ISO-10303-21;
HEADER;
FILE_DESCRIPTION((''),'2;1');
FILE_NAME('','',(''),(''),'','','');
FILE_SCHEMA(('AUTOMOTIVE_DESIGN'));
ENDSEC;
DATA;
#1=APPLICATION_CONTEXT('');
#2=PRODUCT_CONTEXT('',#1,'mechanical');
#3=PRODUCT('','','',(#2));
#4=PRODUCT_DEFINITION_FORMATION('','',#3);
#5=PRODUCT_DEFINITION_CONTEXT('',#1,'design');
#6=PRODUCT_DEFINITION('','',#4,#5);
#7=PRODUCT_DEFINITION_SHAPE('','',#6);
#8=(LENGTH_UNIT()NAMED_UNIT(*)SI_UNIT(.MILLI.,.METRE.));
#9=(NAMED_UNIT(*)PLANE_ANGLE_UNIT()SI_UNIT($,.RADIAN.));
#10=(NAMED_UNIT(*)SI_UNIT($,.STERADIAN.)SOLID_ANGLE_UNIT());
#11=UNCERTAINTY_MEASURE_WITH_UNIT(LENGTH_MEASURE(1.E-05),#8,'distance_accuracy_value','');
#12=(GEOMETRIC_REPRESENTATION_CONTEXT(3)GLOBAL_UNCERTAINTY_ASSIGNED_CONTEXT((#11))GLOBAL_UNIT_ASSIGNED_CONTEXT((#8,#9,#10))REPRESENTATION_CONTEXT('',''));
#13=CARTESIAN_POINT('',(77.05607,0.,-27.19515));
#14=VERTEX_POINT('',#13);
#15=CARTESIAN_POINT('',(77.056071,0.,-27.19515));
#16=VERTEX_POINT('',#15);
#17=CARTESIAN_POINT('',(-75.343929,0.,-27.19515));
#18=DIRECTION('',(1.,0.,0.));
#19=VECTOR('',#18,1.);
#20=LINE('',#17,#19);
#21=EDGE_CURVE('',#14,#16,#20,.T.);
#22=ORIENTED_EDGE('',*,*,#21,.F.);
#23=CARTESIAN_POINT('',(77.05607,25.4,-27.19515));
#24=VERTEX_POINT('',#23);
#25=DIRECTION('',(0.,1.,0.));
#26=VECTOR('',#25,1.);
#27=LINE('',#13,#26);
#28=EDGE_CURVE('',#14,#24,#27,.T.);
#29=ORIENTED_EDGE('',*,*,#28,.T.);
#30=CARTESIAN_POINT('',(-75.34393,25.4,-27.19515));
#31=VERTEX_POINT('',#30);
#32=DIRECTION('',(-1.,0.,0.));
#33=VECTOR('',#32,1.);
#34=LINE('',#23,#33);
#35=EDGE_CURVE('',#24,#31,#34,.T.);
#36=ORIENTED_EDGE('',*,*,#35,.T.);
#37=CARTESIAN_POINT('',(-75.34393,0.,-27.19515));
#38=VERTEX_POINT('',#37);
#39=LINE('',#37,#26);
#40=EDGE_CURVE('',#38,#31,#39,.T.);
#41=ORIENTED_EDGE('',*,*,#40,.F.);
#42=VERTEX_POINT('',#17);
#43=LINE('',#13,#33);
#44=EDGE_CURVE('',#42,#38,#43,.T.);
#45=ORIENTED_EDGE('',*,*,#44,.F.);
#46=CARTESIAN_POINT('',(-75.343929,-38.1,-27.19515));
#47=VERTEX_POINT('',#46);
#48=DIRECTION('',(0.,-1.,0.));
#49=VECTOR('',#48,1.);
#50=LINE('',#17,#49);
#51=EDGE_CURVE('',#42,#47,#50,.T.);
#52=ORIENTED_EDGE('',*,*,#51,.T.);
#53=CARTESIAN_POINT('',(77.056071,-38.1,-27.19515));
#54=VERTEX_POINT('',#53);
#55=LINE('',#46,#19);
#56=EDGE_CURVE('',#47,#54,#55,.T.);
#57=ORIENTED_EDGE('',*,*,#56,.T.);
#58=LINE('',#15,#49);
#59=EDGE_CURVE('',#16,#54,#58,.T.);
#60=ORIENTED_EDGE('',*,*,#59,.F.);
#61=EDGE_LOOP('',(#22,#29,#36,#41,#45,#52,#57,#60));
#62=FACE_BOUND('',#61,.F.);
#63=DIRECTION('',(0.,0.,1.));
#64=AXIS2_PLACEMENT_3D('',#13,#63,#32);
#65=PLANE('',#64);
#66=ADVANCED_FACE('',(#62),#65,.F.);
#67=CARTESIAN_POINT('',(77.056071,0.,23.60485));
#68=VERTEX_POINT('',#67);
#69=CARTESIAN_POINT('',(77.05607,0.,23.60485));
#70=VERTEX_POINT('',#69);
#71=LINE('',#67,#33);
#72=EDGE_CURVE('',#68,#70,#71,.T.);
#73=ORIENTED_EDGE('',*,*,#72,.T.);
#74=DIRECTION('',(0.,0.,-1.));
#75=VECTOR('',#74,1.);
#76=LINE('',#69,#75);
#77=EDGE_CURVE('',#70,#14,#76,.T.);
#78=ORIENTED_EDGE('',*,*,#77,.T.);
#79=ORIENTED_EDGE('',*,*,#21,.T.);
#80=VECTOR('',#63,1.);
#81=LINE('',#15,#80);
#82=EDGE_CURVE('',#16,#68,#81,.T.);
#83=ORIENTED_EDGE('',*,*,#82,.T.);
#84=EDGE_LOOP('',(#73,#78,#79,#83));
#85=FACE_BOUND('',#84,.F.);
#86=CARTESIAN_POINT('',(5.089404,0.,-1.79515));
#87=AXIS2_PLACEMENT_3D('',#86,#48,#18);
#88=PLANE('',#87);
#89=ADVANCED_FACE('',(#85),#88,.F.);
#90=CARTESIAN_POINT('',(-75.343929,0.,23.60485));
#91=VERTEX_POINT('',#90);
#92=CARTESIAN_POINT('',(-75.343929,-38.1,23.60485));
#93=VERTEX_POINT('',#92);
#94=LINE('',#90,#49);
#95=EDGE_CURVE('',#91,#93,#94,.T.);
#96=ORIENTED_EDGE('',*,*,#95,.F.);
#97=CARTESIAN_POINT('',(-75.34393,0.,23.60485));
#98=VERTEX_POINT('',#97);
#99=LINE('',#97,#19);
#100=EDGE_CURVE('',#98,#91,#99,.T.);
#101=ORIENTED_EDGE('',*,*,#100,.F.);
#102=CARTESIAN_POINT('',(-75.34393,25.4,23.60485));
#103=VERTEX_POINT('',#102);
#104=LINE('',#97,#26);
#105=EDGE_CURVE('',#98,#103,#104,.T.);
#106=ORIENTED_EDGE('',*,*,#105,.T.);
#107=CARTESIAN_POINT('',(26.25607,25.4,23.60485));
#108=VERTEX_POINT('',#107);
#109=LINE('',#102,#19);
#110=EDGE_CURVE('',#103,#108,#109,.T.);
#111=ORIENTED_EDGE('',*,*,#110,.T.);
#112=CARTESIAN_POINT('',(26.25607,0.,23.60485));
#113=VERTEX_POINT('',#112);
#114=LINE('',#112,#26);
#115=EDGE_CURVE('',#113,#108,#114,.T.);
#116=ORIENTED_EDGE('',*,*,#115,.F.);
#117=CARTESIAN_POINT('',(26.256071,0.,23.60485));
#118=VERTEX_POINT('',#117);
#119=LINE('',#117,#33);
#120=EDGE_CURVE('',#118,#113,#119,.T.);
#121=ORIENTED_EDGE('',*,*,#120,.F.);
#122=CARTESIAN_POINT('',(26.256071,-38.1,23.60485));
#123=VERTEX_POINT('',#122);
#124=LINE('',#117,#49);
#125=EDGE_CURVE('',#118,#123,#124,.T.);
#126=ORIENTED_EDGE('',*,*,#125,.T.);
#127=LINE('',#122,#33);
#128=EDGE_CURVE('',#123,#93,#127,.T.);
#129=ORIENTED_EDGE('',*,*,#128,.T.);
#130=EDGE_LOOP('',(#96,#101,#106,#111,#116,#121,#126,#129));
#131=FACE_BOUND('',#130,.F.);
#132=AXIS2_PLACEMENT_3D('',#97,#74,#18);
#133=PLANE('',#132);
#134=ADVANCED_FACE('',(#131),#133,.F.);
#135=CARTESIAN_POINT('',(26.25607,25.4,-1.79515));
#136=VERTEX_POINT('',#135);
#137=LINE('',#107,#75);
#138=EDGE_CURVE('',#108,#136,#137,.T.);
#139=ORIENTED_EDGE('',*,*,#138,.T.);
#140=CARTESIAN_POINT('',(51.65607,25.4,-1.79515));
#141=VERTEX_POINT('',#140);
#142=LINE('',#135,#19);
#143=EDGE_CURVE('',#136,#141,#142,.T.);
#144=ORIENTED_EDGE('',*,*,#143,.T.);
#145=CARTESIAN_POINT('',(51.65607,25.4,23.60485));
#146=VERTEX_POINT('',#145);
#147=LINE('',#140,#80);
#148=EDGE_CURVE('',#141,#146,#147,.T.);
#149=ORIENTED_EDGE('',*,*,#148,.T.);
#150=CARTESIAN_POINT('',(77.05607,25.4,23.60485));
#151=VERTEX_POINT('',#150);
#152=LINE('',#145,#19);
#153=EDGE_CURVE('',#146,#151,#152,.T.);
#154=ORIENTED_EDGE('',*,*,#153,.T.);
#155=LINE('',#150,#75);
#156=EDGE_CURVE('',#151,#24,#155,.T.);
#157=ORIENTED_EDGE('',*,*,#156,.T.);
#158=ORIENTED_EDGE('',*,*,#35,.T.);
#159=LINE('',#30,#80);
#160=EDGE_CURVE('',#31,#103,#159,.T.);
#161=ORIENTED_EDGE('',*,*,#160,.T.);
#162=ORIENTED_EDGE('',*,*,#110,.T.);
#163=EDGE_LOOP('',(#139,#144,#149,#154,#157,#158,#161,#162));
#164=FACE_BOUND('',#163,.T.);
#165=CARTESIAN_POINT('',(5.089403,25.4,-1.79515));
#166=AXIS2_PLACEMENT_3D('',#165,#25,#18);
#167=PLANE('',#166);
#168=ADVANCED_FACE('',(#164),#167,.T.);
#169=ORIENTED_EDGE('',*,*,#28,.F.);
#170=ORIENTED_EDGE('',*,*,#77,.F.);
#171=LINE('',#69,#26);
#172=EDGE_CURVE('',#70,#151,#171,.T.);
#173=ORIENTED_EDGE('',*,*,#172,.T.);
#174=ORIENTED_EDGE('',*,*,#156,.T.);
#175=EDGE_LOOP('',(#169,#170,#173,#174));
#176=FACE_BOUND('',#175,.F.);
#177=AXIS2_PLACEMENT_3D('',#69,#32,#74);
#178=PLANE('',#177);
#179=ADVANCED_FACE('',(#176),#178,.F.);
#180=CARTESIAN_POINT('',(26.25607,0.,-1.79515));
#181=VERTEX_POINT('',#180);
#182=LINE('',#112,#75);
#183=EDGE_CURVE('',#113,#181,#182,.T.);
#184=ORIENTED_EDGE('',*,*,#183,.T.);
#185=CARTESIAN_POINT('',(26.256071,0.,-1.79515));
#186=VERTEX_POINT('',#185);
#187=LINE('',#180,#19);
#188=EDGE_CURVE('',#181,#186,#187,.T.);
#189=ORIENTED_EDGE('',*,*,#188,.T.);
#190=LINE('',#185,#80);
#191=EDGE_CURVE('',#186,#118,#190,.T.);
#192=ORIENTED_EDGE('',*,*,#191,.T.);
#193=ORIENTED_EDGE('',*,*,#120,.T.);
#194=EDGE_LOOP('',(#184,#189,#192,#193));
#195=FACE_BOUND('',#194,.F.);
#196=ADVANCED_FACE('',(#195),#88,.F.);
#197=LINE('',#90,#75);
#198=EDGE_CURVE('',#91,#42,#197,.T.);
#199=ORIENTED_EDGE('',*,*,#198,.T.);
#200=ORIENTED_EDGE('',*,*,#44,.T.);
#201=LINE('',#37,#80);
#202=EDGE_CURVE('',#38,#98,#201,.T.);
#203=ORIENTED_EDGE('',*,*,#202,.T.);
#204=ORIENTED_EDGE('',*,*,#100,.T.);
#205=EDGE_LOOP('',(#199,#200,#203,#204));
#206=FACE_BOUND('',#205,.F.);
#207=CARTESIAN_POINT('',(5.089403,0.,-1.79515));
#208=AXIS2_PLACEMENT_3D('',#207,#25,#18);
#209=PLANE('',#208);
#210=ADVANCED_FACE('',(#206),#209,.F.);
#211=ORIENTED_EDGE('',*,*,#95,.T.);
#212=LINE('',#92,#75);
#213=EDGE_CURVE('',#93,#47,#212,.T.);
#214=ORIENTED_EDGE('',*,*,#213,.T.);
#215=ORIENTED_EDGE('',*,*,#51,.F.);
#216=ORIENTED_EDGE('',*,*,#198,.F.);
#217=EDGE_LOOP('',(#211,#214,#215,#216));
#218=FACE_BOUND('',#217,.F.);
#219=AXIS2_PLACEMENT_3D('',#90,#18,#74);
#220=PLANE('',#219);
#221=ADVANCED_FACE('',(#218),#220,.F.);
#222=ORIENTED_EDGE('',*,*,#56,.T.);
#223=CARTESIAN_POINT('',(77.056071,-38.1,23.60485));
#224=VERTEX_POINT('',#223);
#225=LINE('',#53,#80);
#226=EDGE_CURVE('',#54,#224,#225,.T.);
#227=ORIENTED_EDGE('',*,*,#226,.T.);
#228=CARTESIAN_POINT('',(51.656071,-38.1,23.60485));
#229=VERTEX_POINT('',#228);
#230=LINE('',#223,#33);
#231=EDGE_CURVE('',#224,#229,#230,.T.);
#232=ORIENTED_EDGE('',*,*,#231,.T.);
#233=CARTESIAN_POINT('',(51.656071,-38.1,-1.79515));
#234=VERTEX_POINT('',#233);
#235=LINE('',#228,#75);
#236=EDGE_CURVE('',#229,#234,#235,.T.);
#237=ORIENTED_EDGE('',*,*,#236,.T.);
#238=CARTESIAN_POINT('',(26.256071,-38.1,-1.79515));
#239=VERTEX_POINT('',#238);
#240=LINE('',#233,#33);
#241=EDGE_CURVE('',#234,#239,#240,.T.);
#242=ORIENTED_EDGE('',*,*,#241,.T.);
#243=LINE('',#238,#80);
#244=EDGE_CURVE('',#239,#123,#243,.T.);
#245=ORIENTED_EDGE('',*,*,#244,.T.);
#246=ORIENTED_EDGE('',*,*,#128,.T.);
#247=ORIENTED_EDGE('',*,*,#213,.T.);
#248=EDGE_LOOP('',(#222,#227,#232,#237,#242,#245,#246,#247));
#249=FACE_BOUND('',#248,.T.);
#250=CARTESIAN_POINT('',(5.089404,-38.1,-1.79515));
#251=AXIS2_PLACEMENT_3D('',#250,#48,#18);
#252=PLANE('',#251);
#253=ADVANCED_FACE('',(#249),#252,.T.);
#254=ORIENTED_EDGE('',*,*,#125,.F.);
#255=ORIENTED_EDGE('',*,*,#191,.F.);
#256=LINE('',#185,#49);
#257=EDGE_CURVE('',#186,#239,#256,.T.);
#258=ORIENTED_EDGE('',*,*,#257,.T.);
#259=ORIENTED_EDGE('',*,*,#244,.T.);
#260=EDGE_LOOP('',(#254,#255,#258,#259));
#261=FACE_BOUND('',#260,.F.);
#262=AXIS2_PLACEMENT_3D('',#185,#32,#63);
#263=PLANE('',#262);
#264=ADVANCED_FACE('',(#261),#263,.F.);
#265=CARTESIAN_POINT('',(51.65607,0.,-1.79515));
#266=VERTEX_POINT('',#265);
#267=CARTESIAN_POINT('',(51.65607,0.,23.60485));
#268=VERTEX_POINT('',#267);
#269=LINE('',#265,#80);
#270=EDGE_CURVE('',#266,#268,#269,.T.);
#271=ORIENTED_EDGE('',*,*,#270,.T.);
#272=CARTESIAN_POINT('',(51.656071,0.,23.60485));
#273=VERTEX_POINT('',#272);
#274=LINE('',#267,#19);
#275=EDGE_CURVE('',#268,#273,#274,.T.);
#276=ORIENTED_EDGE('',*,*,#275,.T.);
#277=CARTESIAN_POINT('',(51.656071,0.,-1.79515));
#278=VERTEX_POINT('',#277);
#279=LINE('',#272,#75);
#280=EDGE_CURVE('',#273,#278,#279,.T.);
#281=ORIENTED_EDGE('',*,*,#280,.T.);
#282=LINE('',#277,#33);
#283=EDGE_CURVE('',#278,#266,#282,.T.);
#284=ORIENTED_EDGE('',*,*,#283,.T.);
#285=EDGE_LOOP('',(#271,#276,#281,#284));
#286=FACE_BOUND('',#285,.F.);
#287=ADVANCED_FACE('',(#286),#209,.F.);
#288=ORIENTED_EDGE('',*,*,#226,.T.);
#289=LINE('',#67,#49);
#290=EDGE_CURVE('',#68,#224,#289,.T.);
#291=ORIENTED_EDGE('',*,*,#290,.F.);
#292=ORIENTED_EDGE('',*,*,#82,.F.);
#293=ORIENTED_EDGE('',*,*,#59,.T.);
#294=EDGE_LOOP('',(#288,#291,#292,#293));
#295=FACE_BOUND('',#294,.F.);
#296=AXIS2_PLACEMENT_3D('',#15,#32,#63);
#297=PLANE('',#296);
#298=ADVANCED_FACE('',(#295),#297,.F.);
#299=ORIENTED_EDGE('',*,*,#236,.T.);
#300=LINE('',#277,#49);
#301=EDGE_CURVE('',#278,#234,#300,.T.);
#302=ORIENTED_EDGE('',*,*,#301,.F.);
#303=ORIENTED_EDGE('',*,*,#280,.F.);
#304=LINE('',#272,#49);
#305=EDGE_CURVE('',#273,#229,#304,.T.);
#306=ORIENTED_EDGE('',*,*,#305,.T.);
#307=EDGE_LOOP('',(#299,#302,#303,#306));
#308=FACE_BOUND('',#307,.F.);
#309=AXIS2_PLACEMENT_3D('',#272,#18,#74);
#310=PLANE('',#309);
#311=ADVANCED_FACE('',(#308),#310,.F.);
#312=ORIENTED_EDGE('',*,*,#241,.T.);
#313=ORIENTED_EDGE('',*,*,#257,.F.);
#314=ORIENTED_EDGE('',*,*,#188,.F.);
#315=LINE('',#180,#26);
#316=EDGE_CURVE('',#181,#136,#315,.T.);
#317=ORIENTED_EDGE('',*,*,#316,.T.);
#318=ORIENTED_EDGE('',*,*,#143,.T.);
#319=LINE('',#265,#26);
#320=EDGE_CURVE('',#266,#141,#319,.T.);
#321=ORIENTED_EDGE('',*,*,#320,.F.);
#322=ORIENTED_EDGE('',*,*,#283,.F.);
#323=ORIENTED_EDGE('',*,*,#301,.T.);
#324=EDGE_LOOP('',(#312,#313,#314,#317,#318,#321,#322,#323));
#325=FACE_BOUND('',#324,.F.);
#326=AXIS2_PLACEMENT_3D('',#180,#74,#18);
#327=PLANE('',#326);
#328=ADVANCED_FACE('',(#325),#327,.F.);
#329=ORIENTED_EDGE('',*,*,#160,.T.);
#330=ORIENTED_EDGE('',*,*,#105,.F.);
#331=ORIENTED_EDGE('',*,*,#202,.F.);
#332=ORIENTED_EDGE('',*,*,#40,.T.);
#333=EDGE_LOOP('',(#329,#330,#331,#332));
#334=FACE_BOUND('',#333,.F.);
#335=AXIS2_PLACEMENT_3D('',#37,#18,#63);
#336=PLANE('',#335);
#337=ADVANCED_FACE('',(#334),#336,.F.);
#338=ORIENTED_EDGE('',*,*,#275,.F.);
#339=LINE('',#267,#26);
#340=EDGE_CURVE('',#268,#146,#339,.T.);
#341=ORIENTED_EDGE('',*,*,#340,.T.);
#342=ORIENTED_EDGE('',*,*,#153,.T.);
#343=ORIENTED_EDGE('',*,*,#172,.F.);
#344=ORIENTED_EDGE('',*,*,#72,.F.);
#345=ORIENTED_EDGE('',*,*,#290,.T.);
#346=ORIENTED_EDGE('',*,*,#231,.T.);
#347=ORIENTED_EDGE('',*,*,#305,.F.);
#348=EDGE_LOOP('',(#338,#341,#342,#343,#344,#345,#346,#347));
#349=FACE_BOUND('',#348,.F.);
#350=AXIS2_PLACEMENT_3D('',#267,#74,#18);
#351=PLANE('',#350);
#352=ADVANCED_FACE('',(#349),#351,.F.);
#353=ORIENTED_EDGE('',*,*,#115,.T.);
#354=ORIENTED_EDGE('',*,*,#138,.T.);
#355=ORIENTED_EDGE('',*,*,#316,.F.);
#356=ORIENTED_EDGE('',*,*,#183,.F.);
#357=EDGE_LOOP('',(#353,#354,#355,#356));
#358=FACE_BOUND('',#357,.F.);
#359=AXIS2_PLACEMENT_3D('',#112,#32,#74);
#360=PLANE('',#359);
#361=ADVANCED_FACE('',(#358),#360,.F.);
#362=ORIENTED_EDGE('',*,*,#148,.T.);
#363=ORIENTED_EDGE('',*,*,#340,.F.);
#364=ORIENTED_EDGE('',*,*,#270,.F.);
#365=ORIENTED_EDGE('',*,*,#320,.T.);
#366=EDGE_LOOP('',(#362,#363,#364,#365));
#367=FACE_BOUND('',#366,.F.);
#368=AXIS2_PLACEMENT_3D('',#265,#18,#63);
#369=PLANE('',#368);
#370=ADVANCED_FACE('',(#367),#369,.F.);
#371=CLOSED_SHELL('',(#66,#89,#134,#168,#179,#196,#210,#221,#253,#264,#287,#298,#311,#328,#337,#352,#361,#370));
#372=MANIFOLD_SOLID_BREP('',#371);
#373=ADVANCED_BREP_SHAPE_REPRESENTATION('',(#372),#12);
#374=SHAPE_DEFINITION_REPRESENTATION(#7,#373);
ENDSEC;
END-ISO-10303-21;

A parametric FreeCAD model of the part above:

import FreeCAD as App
import Part
import Sketcher
from FreeCAD import Vector
Q = App.Units.Quantity

doc = App.newDocument("Part")
params = doc.addObject("Spreadsheet::Sheet", "Params")
for row, (alias, value) in enumerate([
    ("sketch1_width", "6 in"),
    ("sketch1_width2", "1 in"),
    ("sketch1_height", "2 in"),
    ("pad1_length", "1.5 in"),
    ("sketch2_width", "4 in"),
    ("sketch2_width2", "1 in"),
    ("sketch2_height", "2 in"),
    ("pad2_length", "1 in"),
], start=1):
    params.set(f"A{row}", alias)
    params.set(f"B{row}", "=" + value)
    params.setAlias(f"B{row}", alias)

body = doc.addObject("PartDesign::Body", "Body")

# Sketch on XZ plane
sketch1 = body.newObject("Sketcher::SketchObject", "Sketch")
sketch1.AttachmentSupport = (doc.getObject("XZ_Plane"), [""])
sketch1.MapMode = "FlatFace"
sketch1.addGeometry([
    Part.LineSegment(Vector(-75, 24, 0), Vector(-75, -27, 0)),  # 0
    Part.LineSegment(Vector(-75, -27, 0), Vector(77, -27, 0)),  # 1
    Part.LineSegment(Vector(77, -27, 0), Vector(77, 24, 0)),  # 2
    Part.LineSegment(Vector(77, 24, 0), Vector(52, 24, 0)),  # 3
    Part.LineSegment(Vector(52, 24, 0), Vector(52, -2, 0)),  # 4
    Part.LineSegment(Vector(52, -2, 0), Vector(26, -2, 0)),  # 5
    Part.LineSegment(Vector(26, -2, 0), Vector(26, 24, 0)),  # 6
    Part.LineSegment(Vector(26, 24, 0), Vector(-75, 24, 0)),  # 7
], False)
sketch1.addConstraint([
    Sketcher.Constraint("Coincident", 0, 2, 1, 1),
    Sketcher.Constraint("Coincident", 1, 2, 2, 1),
    Sketcher.Constraint("Coincident", 2, 2, 3, 1),
    Sketcher.Constraint("Coincident", 3, 2, 4, 1),
    Sketcher.Constraint("Coincident", 4, 2, 5, 1),
    Sketcher.Constraint("Coincident", 5, 2, 6, 1),
    Sketcher.Constraint("Coincident", 6, 2, 7, 1),
    Sketcher.Constraint("Coincident", 7, 2, 0, 1),
    Sketcher.Constraint("Vertical", 0),
    Sketcher.Constraint("Horizontal", 1),
    Sketcher.Constraint("Vertical", 2),
    Sketcher.Constraint("Horizontal", 3),
    Sketcher.Constraint("Vertical", 4),
    Sketcher.Constraint("Horizontal", 5),
    Sketcher.Constraint("Vertical", 6),
    Sketcher.Constraint("Horizontal", 7),
    Sketcher.Constraint("Horizontal", 3, 2, 6, 2),
    Sketcher.Constraint("Equal", 3, 5),
    Sketcher.Constraint("Equal", 5, 4),
    Sketcher.Constraint("DistanceX", 1, 1, 1, 2, Q("6 in")),
    Sketcher.Constraint("DistanceX", 3, 2, 3, 1, Q("1 in")),
    Sketcher.Constraint("DistanceY", 0, 2, 0, 1, Q("2 in")),
    Sketcher.Constraint("DistanceX", 0, 2, -1, 1, Q("75.343929 mm")),
    Sketcher.Constraint("DistanceY", 0, 2, -1, 1, Q("27.19515 mm")),
])
sketch1.setExpression("Constraints[19]", "Params.sketch1_width")
sketch1.setExpression("Constraints[20]", "Params.sketch1_width2")
sketch1.setExpression("Constraints[21]", "Params.sketch1_height")
pad1 = body.newObject("PartDesign::Pad", "Pad")
pad1.Profile = sketch1
pad1.setExpression("Length", "Params.pad1_length")

# Sketch on XZ plane
sketch2 = body.newObject("Sketcher::SketchObject", "Sketch001")
sketch2.AttachmentSupport = (doc.getObject("XZ_Plane"), [""])
sketch2.MapMode = "FlatFace"
sketch2.addGeometry([
    Part.LineSegment(Vector(-75, -27, 0), Vector(-75, 24, 0)),  # 0
    Part.LineSegment(Vector(-75, 24, 0), Vector(26, 24, 0)),  # 1
    Part.LineSegment(Vector(26, 24, 0), Vector(26, -2, 0)),  # 2
    Part.LineSegment(Vector(26, -2, 0), Vector(52, -2, 0)),  # 3
    Part.LineSegment(Vector(52, -2, 0), Vector(52, 24, 0)),  # 4
    Part.LineSegment(Vector(52, 24, 0), Vector(77, 24, 0)),  # 5
    Part.LineSegment(Vector(77, 24, 0), Vector(77, -27, 0)),  # 6
    Part.LineSegment(Vector(77, -27, 0), Vector(-75, -27, 0)),  # 7
], False)
sketch2.addConstraint([
    Sketcher.Constraint("Coincident", 0, 2, 1, 1),
    Sketcher.Constraint("Coincident", 1, 2, 2, 1),
    Sketcher.Constraint("Coincident", 2, 2, 3, 1),
    Sketcher.Constraint("Coincident", 3, 2, 4, 1),
    Sketcher.Constraint("Coincident", 4, 2, 5, 1),
    Sketcher.Constraint("Coincident", 5, 2, 6, 1),
    Sketcher.Constraint("Coincident", 6, 2, 7, 1),
    Sketcher.Constraint("Coincident", 7, 2, 0, 1),
    Sketcher.Constraint("Vertical", 0),
    Sketcher.Constraint("Horizontal", 1),
    Sketcher.Constraint("Vertical", 2),
    Sketcher.Constraint("Horizontal", 3),
    Sketcher.Constraint("Vertical", 4),
    Sketcher.Constraint("Horizontal", 5),
    Sketcher.Constraint("Vertical", 6),
    Sketcher.Constraint("Horizontal", 7),
    Sketcher.Constraint("Horizontal", 1, 2, 4, 2),
    Sketcher.Constraint("Equal", 3, 5),
    Sketcher.Constraint("Equal", 5, 2),
    Sketcher.Constraint("DistanceX", 1, 1, 1, 2, Q("4 in")),
    Sketcher.Constraint("DistanceX", 3, 1, 3, 2, Q("1 in")),
    Sketcher.Constraint("DistanceY", 0, 1, 0, 2, Q("2 in")),
    Sketcher.Constraint("DistanceX", 0, 2, -1, 1, Q("75.34393 mm")),
    Sketcher.Constraint("DistanceY", -1, 1, 0, 2, Q("23.60485 mm")),
])
sketch2.setExpression("Constraints[19]", "Params.sketch2_width")
sketch2.setExpression("Constraints[20]", "Params.sketch2_width2")
sketch2.setExpression("Constraints[21]", "Params.sketch2_height")
pad2 = body.newObject("PartDesign::Pad", "Pad001")
pad2.Profile = sketch2
pad2.setExpression("Length", "Params.pad2_length")
pad2.Reversed = True

doc.recompute()
